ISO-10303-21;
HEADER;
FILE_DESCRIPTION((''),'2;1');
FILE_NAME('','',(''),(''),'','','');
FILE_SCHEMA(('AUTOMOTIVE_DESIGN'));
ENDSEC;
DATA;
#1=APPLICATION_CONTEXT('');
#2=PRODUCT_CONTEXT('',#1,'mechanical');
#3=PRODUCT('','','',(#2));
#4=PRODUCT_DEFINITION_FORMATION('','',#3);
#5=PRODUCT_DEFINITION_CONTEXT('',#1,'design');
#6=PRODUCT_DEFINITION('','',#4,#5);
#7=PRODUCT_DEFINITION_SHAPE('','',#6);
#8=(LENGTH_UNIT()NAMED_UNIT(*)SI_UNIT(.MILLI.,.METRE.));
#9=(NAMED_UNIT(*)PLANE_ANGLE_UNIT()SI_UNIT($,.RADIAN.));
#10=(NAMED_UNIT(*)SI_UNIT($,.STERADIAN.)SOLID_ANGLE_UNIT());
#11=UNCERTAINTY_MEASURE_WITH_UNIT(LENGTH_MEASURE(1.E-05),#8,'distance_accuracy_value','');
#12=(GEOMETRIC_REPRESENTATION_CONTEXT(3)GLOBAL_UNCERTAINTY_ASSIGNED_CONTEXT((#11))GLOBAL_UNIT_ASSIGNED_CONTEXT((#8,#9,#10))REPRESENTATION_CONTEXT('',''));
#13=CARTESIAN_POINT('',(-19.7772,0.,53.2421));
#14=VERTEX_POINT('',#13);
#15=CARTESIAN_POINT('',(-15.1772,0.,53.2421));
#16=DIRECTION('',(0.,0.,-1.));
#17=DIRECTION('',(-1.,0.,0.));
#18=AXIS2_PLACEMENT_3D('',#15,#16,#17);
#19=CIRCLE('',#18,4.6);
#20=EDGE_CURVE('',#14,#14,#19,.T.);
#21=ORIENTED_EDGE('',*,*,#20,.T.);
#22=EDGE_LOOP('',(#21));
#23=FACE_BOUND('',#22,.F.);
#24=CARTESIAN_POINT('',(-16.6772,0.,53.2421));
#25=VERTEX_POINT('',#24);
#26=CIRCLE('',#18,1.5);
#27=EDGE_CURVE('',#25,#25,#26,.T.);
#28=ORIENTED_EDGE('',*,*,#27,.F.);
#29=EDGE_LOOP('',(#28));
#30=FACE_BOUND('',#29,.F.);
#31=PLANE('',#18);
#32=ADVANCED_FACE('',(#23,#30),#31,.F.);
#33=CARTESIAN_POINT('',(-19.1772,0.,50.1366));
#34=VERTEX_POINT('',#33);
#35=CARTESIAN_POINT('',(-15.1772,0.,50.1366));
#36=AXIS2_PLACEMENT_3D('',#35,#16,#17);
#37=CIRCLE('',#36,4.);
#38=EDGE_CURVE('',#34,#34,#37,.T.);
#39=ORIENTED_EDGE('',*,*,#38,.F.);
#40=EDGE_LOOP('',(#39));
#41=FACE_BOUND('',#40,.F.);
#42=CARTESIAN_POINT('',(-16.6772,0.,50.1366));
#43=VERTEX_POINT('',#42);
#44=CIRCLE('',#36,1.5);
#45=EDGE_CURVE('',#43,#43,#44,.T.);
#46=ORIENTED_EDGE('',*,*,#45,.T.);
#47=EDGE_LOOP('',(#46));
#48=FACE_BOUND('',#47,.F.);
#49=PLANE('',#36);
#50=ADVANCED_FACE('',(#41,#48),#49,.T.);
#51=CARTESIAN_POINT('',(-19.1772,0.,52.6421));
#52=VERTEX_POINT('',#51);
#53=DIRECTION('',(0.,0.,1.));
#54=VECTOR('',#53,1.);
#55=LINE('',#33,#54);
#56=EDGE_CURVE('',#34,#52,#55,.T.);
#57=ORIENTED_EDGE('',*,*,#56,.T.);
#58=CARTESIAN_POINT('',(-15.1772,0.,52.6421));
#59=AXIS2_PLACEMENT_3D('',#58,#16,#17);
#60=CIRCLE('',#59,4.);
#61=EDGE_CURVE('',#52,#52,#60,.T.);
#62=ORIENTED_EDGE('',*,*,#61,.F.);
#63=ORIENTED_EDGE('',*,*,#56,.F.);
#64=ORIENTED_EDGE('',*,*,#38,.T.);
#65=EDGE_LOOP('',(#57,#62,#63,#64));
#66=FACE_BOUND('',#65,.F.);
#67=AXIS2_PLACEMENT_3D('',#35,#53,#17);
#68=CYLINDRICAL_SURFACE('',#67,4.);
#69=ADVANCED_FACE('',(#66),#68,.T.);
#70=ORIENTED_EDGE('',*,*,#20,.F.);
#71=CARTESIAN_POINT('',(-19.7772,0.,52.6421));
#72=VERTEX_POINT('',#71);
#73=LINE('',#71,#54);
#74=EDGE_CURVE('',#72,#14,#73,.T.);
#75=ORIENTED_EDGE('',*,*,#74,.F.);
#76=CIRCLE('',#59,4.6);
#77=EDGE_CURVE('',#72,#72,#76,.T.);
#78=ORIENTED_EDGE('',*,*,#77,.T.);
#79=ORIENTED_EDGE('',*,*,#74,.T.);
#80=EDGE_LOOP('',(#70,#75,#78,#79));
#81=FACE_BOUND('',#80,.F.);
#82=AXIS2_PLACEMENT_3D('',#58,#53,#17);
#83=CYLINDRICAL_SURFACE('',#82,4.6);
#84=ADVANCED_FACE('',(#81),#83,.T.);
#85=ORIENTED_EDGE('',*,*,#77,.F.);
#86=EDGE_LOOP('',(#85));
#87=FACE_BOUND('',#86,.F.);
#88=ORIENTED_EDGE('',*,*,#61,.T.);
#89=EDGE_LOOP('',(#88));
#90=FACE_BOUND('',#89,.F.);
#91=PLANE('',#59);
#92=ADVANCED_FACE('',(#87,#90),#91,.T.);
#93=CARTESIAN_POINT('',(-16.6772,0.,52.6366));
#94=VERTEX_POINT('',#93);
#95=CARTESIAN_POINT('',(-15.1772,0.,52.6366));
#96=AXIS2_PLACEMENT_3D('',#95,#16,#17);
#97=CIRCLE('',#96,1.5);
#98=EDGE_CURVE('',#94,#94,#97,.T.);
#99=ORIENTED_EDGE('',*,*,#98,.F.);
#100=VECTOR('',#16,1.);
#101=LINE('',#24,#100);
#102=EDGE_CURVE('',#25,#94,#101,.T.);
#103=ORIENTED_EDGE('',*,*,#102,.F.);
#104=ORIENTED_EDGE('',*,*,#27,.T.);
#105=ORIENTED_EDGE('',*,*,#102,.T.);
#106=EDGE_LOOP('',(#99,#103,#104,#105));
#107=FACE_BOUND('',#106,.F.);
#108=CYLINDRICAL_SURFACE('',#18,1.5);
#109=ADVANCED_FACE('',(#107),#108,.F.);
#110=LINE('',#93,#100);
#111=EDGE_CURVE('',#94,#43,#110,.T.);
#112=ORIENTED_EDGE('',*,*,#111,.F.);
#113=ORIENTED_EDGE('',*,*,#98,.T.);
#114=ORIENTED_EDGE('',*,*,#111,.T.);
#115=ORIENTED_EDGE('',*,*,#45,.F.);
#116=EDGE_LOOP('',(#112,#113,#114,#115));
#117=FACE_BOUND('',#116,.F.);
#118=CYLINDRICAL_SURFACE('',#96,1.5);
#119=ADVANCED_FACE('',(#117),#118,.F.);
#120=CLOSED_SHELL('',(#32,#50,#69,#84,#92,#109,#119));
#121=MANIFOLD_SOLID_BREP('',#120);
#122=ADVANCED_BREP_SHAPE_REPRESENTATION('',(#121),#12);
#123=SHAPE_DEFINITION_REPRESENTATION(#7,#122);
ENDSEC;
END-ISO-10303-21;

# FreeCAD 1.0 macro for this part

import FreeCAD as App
import Part
import Sketcher

V = App.Vector


def add_polygon(sketch, points):
    """Adds a closed chain of lines whose ends are joined by coincident constraints."""
    first, n = sketch.GeometryCount, len(points)
    for a, b in zip(points, points[1:] + points[:1]):
        sketch.addGeometry(Part.LineSegment(App.Vector(*a, 0), App.Vector(*b, 0)), False)
    for i in range(n):
        sketch.addConstraint(Sketcher.Constraint("Coincident", first + i, 2, first + (i + 1) % n, 1))

doc = App.newDocument("Part")
params = doc.addObject("Spreadsheet::Sheet", "Params")
for row, (alias, value) in enumerate([
    ("sketch1_width", "2.5 mm"),
    ("sketch1_width2", "0.6 mm"),
    ("revolution_angle", "360 deg"),
], start=1):
    params.set(f"A{row}", alias)
    params.set(f"B{row}", "=" + value)
    params.setAlias(f"B{row}", alias)

body = doc.addObject("PartDesign::Body", "Body")

sketch1 = body.newObject("Sketcher::SketchObject", "Sketch")
sketch1.AttachmentSupport = (doc.getObject("XZ_Plane"), [""])
sketch1.MapMode = "FlatFace"
add_polygon(sketch1, [(-16.7, 53.2), (-16.7, 50.1), (-19.2, 50.1), (-19.2, 52.6), (-19.8, 52.6), (-19.8, 53.2)])
sketch1.addGeometry(Part.LineSegment(V(-15.2, 53.2, 0), V(-15.2, 50.1, 0)), True)
sketch1.addConstraint([
    Sketcher.Constraint("Vertical", 0),
    Sketcher.Constraint("Horizontal", 1),
    Sketcher.Constraint("Vertical", 2),
    Sketcher.Constraint("Horizontal", 3),
    Sketcher.Constraint("Vertical", 4),
    Sketcher.Constraint("Horizontal", 5),
    Sketcher.Constraint("Vertical", 6),
    Sketcher.Constraint("Horizontal", 5, 2, 6, 1),
    Sketcher.Constraint("Horizontal", 1, 2, 6, 2),
    Sketcher.Constraint("Equal", 3, 4),
    Sketcher.Constraint("DistanceX", 1, 2, 1, 1, 2.5),
    Sketcher.Constraint("DistanceX", 3, 2, 3, 1, 0.6),
    Sketcher.Constraint("DistanceX", 5, 2, 6, 1, 1.5),
    Sketcher.Constraint("DistanceY", 0, 2, 0, 1, 3.1055),
    Sketcher.Constraint("DistanceY", -1, 1, 2, 2, 52.642),
    Sketcher.Constraint("DistanceX", 0, 2, -1, 1, 16.6772),
])
sketch1.setExpression("Constraints[16]", "Params.sketch1_width")
sketch1.setExpression("Constraints[17]", "Params.sketch1_width2")
revolution = body.newObject("PartDesign::Revolution", "Revolution")
revolution.Profile = sketch1
revolution.ReferenceAxis = (sketch1, ["Axis0"])
revolution.setExpression("Angle", "Params.revolution_angle")

doc.recompute()
